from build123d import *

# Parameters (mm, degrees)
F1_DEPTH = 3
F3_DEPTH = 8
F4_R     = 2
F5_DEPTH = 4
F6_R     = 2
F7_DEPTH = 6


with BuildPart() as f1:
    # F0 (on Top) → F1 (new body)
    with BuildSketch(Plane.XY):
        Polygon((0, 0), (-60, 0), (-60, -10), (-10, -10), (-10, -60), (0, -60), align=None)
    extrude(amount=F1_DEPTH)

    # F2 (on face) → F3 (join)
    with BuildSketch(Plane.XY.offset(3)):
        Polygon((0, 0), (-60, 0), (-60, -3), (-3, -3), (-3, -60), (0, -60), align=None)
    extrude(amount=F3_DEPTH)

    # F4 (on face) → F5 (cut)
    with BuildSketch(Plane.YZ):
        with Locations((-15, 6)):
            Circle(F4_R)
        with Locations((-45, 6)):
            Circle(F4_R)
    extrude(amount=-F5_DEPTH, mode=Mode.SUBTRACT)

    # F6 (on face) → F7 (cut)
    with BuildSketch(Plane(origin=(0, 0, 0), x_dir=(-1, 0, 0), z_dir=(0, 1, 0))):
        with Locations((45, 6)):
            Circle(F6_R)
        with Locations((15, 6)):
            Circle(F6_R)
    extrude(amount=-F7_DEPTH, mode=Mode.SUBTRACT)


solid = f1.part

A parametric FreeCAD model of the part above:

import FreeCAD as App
import Part
import Sketcher
from FreeCAD import Vector
Q = App.Units.Quantity

doc = App.newDocument("Part")
body = doc.addObject("PartDesign::Body", "Body")

# Sketch on XY plane
sketch1 = body.newObject("Sketcher::SketchObject", "Sketch")
sketch1.AttachmentSupport = (doc.getObject("XY_Plane"), [""])
sketch1.MapMode = "FlatFace"
sketch1.addGeometry([
    Part.LineSegment(Vector(0, 0, 0), Vector(-60, 0, 0)),  # 0
    Part.LineSegment(Vector(-60, 0, 0), Vector(-60, -10, 0)),  # 1
    Part.LineSegment(Vector(-60, -10, 0), Vector(-10, -10, 0)),  # 2
    Part.LineSegment(Vector(-10, -10, 0), Vector(-10, -60, 0)),  # 3
    Part.LineSegment(Vector(-10, -60, 0), Vector(0, -60, 0)),  # 4
    Part.LineSegment(Vector(0, -60, 0), Vector(0, 0, 0)),  # 5
], False)
sketch1.addConstraint([
    Sketcher.Constraint("Coincident", 0, 2, 1, 1),
    Sketcher.Constraint("Coincident", 1, 2, 2, 1),
    Sketcher.Constraint("Coincident", 2, 2, 3, 1),
    Sketcher.Constraint("Coincident", 3, 2, 4, 1),
    Sketcher.Constraint("Coincident", 4, 2, 5, 1),
    Sketcher.Constraint("Coincident", 5, 2, 0, 1),
    Sketcher.Constraint("Horizontal", 0),
    Sketcher.Constraint("Vertical", 1),
    Sketcher.Constraint("Horizontal", 2),
    Sketcher.Constraint("Vertical", 3),
    Sketcher.Constraint("Horizontal", 4),
    Sketcher.Constraint("Vertical", 5),
    Sketcher.Constraint("Coincident", 5, 2, -1, 1),
    Sketcher.Constraint("Equal", 4, 1),
    Sketcher.Constraint("Equal", 2, 3),
    Sketcher.Constraint("DistanceX", 0, 2, 0, 1, Q("60 mm")),
    Sketcher.Constraint("DistanceX", 2, 1, 2, 2, Q("50 mm")),
])
pad1 = body.newObject("PartDesign::Pad", "Pad")
pad1.Profile = sketch1
pad1.Length = 3

# Sketch on XY plane
sketch2 = body.newObject("Sketcher::SketchObject", "Sketch001")
sketch2.AttachmentSupport = (doc.getObject("XY_Plane"), [""])
sketch2.MapMode = "FlatFace"
sketch2.AttachmentOffset = App.Placement(Vector(0, 0, 3), App.Rotation())
sketch2.addGeometry([
    Part.LineSegment(Vector(0, 0, 0), Vector(-60, 0, 0)),  # 0
    Part.LineSegment(Vector(-60, 0, 0), Vector(-60, -3, 0)),  # 1
    Part.LineSegment(Vector(-60, -3, 0), Vector(-3, -3, 0)),  # 2
    Part.LineSegment(Vector(-3, -3, 0), Vector(-3, -60, 0)),  # 3
    Part.LineSegment(Vector(-3, -60, 0), Vector(0, -60, 0)),  # 4
    Part.LineSegment(Vector(0, -60, 0), Vector(0, 0, 0)),  # 5
], False)
sketch2.addConstraint([
    Sketcher.Constraint("Coincident", 0, 2, 1, 1),
    Sketcher.Constraint("Coincident", 1, 2, 2, 1),
    Sketcher.Constraint("Coincident", 2, 2, 3, 1),
    Sketcher.Constraint("Coincident", 3, 2, 4, 1),
    Sketcher.Constraint("Coincident", 4, 2, 5, 1),
    Sketcher.Constraint("Coincident", 5, 2, 0, 1),
    Sketcher.Constraint("Horizontal", 0),
    Sketcher.Constraint("Vertical", 1),
    Sketcher.Constraint("Horizontal", 2),
    Sketcher.Constraint("Vertical", 3),
    Sketcher.Constraint("Horizontal", 4),
    Sketcher.Constraint("Vertical", 5),
    Sketcher.Constraint("Coincident", 5, 2, -1, 1),
    Sketcher.Constraint("Equal", 4, 1),
    Sketcher.Constraint("Equal", 2, 3),
    Sketcher.Constraint("DistanceX", 0, 2, 0, 1, Q("60 mm")),
    Sketcher.Constraint("DistanceX", 2, 1, 2, 2, Q("57 mm")),
])
pad2 = body.newObject("PartDesign::Pad", "Pad001")
pad2.Profile = sketch2
pad2.Length = 8

# Sketch on YZ plane
sketch3 = body.newObject("Sketcher::SketchObject", "Sketch002")
sketch3.AttachmentSupport = (doc.getObject("YZ_Plane"), [""])
sketch3.MapMode = "FlatFace"
sketch3.addGeometry([
    Part.Circle(Vector(-15, 6, 0), Vector(0, 0, 1), 2),
    Part.Circle(Vector(-45, 6, 0), Vector(0, 0, 1), 2),
], False)
sketch3.addConstraint([
    Sketcher.Constraint("Equal", 0, 1),
    Sketcher.Constraint("Horizontal", 0, 3, 1, 3),
    Sketcher.Constraint("Diameter", 0, Q("4 mm")),
    Sketcher.Constraint("DistanceX", 0, 3, -1, 1, Q("15 mm")),
    Sketcher.Constraint("DistanceY", -1, 1, 0, 3, Q("6 mm")),
    Sketcher.Constraint("DistanceX", 1, 3, -1, 1, Q("45 mm")),
])
pocket1 = body.newObject("PartDesign::Pocket", "Pocket")
pocket1.Profile = sketch3
pocket1.Length = 4

# Sketch on XZ plane
sketch4 = body.newObject("Sketcher::SketchObject", "Sketch003")
sketch4.AttachmentSupport = (doc.getObject("XZ_Plane"), [""])
sketch4.MapMode = "FlatFace"
sketch4.addGeometry([
    Part.Circle(Vector(-45, 6, 0), Vector(0, 0, 1), 2),
    Part.Circle(Vector(-15, 6, 0), Vector(0, 0, 1), 2),
], False)
sketch4.addConstraint([
    Sketcher.Constraint("Equal", 0, 1),
    Sketcher.Constraint("Horizontal", 0, 3, 1, 3),
    Sketcher.Constraint("Diameter", 0, Q("4 mm")),
    Sketcher.Constraint("DistanceX", 0, 3, -1, 1, Q("45 mm")),
    Sketcher.Constraint("DistanceY", -1, 1, 0, 3, Q("6 mm")),
    Sketcher.Constraint("DistanceX", 1, 3, -1, 1, Q("15 mm")),
])
pocket2 = body.newObject("PartDesign::Pocket", "Pocket001")
pocket2.Profile = sketch4
pocket2.Length = 6
pocket2.Reversed = True

doc.recompute()
